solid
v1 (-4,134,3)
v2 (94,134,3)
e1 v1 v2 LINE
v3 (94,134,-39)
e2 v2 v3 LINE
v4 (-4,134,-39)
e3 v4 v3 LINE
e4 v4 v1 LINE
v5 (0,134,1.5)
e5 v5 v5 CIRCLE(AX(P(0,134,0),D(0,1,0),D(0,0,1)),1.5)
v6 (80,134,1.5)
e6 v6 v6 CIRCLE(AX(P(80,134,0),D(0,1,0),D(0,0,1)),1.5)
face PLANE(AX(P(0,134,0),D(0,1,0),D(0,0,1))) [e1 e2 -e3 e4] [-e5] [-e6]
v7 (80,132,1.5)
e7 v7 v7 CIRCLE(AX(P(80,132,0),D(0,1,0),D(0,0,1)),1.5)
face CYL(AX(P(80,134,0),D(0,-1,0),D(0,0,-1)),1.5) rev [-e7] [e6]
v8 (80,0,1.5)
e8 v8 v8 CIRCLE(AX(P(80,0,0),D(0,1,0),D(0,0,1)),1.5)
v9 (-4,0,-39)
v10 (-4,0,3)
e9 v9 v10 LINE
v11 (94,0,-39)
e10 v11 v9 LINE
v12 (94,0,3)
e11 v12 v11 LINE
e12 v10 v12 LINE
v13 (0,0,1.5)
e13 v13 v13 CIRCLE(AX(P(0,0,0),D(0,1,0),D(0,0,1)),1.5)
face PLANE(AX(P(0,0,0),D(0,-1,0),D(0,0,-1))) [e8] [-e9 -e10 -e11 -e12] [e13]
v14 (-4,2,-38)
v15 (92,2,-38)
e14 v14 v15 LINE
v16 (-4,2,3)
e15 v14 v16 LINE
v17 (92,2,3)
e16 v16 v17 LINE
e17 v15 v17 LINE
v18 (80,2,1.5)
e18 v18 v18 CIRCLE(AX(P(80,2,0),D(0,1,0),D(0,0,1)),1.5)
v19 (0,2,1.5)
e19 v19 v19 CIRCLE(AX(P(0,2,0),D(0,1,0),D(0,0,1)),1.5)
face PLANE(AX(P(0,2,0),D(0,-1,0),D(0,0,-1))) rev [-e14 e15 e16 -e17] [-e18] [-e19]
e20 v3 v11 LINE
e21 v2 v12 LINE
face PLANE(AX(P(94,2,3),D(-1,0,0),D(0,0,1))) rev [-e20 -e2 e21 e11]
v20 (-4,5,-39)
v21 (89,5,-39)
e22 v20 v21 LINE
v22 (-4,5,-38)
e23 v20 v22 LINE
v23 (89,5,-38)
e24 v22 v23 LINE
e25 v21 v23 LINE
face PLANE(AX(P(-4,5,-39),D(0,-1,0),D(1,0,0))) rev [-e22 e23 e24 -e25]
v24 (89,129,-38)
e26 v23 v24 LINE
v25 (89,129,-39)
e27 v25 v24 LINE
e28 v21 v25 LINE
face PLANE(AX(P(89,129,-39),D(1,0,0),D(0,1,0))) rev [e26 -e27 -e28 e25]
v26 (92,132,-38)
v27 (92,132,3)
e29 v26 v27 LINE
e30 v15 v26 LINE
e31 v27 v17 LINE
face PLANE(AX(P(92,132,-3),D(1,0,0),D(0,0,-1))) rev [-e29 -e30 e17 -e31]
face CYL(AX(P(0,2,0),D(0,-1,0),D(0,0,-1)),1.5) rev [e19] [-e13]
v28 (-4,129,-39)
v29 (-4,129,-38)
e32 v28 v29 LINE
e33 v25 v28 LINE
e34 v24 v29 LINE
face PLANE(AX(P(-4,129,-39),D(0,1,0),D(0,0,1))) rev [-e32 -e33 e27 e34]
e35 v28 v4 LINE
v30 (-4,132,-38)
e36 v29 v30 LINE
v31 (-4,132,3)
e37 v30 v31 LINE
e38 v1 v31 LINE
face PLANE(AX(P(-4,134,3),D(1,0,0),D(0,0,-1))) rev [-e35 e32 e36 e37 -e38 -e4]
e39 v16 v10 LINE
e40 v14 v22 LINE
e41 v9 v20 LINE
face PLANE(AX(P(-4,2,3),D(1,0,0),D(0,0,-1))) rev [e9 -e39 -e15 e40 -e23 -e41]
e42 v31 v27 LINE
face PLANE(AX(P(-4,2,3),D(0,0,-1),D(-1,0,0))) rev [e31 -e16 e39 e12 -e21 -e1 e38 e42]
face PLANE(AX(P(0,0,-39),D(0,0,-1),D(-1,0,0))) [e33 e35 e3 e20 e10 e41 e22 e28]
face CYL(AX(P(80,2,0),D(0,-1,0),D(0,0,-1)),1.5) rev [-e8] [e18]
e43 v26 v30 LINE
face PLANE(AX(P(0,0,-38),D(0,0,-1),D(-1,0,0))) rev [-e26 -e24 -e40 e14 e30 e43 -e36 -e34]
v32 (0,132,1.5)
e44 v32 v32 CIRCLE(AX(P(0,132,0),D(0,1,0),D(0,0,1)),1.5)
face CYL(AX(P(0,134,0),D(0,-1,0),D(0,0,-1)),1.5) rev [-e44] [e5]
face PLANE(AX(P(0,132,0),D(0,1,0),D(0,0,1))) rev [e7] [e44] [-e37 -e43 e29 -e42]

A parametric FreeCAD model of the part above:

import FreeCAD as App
import Part
import Sketcher
from FreeCAD import Vector
Q = App.Units.Quantity


def add_polygon(sketch, points):
    """Adds a closed chain of lines whose ends are joined by coincident constraints."""
    first, n = sketch.GeometryCount, len(points)
    for a, b in zip(points, points[1:] + points[:1]):
        sketch.addGeometry(Part.LineSegment(App.Vector(*a, 0), App.Vector(*b, 0)), False)
    for i in range(n):
        sketch.addConstraint(Sketcher.Constraint("Coincident", first + i, 2, first + (i + 1) % n, 1))

doc = App.newDocument("Part")
body = doc.addObject("PartDesign::Body", "Body")

sketch1 = body.newObject("Sketcher::SketchObject", "Sketch")
sketch1.AttachmentSupport = (doc.getObject("XZ_Plane"), [""])
sketch1.MapMode = "FlatFace"
add_polygon(sketch1, [(-4, -3), (-4, 3), (94, 3), (94, -3)])
sketch1.addGeometry(Part.Circle(Vector(0, 0, 0), Vector(0, 0, 1), 1.5), False)
sketch1.addGeometry(Part.Circle(Vector(80, 0, 0), Vector(0, 0, 1), 1.5), False)
sketch1.addConstraint(Sketcher.Constraint("Vertical", 0))
sketch1.addConstraint(Sketcher.Constraint("Horizontal", 1))
sketch1.addConstraint(Sketcher.Constraint("Vertical", 2))
sketch1.addConstraint(Sketcher.Constraint("Horizontal", 3))
sketch1.addConstraint(Sketcher.Constraint("Coincident", 4, 3, -1, 1))
sketch1.addConstraint(Sketcher.Constraint("Equal", 4, 5))
sketch1.addConstraint(Sketcher.Constraint("PointOnObject", 5, 3, -1))
sketch1.addConstraint(Sketcher.Constraint("Diameter", 4, Q("3 mm")))
sketch1.addConstraint(Sketcher.Constraint("DistanceX", 1, 1, 1, 2, Q("98 mm")))
sketch1.addConstraint(Sketcher.Constraint("DistanceY", 0, 1, 0, 2, Q("6 mm")))
sketch1.addConstraint(Sketcher.Constraint("DistanceX", -1, 1, 5, 3, Q("80 mm")))
sketch1.addConstraint(Sketcher.Constraint("DistanceX", 0, 2, -1, 1, Q("4 mm")))
sketch1.addConstraint(Sketcher.Constraint("DistanceY", -1, 1, 0, 2, Q("3 mm")))
pad1 = body.newObject("PartDesign::Pad", "Pad")
pad1.Profile = sketch1
pad1.Length = 2
pad1.Reversed = True

sketch2 = body.newObject("Sketcher::SketchObject", "Sketch001")
sketch2.AttachmentSupport = (doc.getObject("XZ_Plane"), [""])
sketch2.MapMode = "FlatFace"
sketch2.AttachmentOffset = App.Placement(Vector(0, 0, -2), App.Rotation())
add_polygon(sketch2, [(92, -3), (92, 3), (94, 3), (94, -3)])
sketch2.addConstraint(Sketcher.Constraint("Vertical", 0))
sketch2.addConstraint(Sketcher.Constraint("Horizontal", 1))
sketch2.addConstraint(Sketcher.Constraint("Vertical", 2))
sketch2.addConstraint(Sketcher.Constraint("Horizontal", 3))
sketch2.addConstraint(Sketcher.Constraint("DistanceX", 1, 1, 1, 2, Q("2 mm")))
sketch2.addConstraint(Sketcher.Constraint("DistanceY", 0, 1, 0, 2, Q("6 mm")))
sketch2.addConstraint(Sketcher.Constraint("DistanceX", -1, 1, 0, 2, Q("92 mm")))
sketch2.addConstraint(Sketcher.Constraint("DistanceY", -1, 1, 0, 2, Q("3 mm")))
pad2 = body.newObject("PartDesign::Pad", "Pad001")
pad2.Profile = sketch2
pad2.Length = 130
pad2.Reversed = True

sketch3 = body.newObject("Sketcher::SketchObject", "Sketch002")
sketch3.AttachmentSupport = (doc.getObject("XZ_Plane"), [""])
sketch3.MapMode = "FlatFace"
sketch3.AttachmentOffset = App.Placement(Vector(0, 0, -132), App.Rotation())
add_polygon(sketch3, [(-4, -3), (-4, 3), (94, 3), (94, -3)])
sketch3.addGeometry(Part.Circle(Vector(0, 0, 0), Vector(0, 0, 1), 1.5), False)
sketch3.addGeometry(Part.Circle(Vector(80, 0, 0), Vector(0, 0, 1), 1.5), False)
sketch3.addConstraint(Sketcher.Constraint("Vertical", 0))
sketch3.addConstraint(Sketcher.Constraint("Horizontal", 1))
sketch3.addConstraint(Sketcher.Constraint("Vertical", 2))
sketch3.addConstraint(Sketcher.Constraint("Horizontal", 3))
sketch3.addConstraint(Sketcher.Constraint("Coincident", 4, 3, -1, 1))
sketch3.addConstraint(Sketcher.Constraint("Equal", 4, 5))
sketch3.addConstraint(Sketcher.Constraint("PointOnObject", 5, 3, -1))
sketch3.addConstraint(Sketcher.Constraint("Diameter", 4, Q("3 mm")))
sketch3.addConstraint(Sketcher.Constraint("DistanceX", 1, 1, 1, 2, Q("98 mm")))
sketch3.addConstraint(Sketcher.Constraint("DistanceY", 0, 1, 0, 2, Q("6 mm")))
sketch3.addConstraint(Sketcher.Constraint("DistanceX", -1, 1, 5, 3, Q("80 mm")))
sketch3.addConstraint(Sketcher.Constraint("DistanceX", 0, 2, -1, 1, Q("4 mm")))
sketch3.addConstraint(Sketcher.Constraint("DistanceY", -1, 1, 0, 2, Q("3 mm")))
pad3 = body.newObject("PartDesign::Pad", "Pad002")
pad3.Profile = sketch3
pad3.Length = 2
pad3.Reversed = True

sketch4 = body.newObject("Sketcher::SketchObject", "Sketch003")
sketch4.AttachmentSupport = (doc.getObject("XY_Plane"), [""])
sketch4.MapMode = "FlatFace"
sketch4.AttachmentOffset = App.Placement(Vector(0, 0, -3), App.Rotation())
add_polygon(sketch4, [(94, 0), (-4, 0), (-4, 2), (92, 2), (92, 132), (-4, 132), (-4, 134), (94, 134)])
sketch4.addConstraint(Sketcher.Constraint("Horizontal", 0))
sketch4.addConstraint(Sketcher.Constraint("Vertical", 1))
sketch4.addConstraint(Sketcher.Constraint("Horizontal", 2))
sketch4.addConstraint(Sketcher.Constraint("Vertical", 3))
sketch4.addConstraint(Sketcher.Constraint("Horizontal", 4))
sketch4.addConstraint(Sketcher.Constraint("Vertical", 5))
sketch4.addConstraint(Sketcher.Constraint("Horizontal", 6))
sketch4.addConstraint(Sketcher.Constraint("Vertical", 7))
sketch4.addConstraint(Sketcher.Constraint("PointOnObject", 0, 2, -1))
sketch4.addConstraint(Sketcher.Constraint("Vertical", 1, 2, 4, 2))
sketch4.addConstraint(Sketcher.Constraint("Equal", 1, 5))
sketch4.addConstraint(Sketcher.Constraint("DistanceX", 0, 2, 0, 1, Q("98 mm")))
sketch4.addConstraint(Sketcher.Constraint("DistanceX", 2, 1, 2, 2, Q("96 mm")))
sketch4.addConstraint(Sketcher.Constraint("DistanceY", 1, 1, 1, 2, Q("2 mm")))
sketch4.addConstraint(Sketcher.Constraint("DistanceY", 3, 1, 3, 2, Q("130 mm")))
sketch4.addConstraint(Sketcher.Constraint("DistanceX", 0, 2, -1, 1, Q("4 mm")))
pad4 = body.newObject("PartDesign::Pad", "Pad003")
pad4.Profile = sketch4
pad4.Length = 35
pad4.Reversed = True

sketch5 = body.newObject("Sketcher::SketchObject", "Sketch004")
sketch5.AttachmentSupport = (doc.getObject("XY_Plane"), [""])
sketch5.MapMode = "FlatFace"
sketch5.AttachmentOffset = App.Placement(Vector(0, 0, -38), App.Rotation())
add_polygon(sketch5, [(94, 0), (-4, 0), (-4, 5), (89, 5), (89, 129), (-4, 129), (-4, 134), (94, 134)])
sketch5.addConstraint(Sketcher.Constraint("Horizontal", 0))
sketch5.addConstraint(Sketcher.Constraint("Vertical", 1))
sketch5.addConstraint(Sketcher.Constraint("Horizontal", 2))
sketch5.addConstraint(Sketcher.Constraint("Vertical", 3))
sketch5.addConstraint(Sketcher.Constraint("Horizontal", 4))
sketch5.addConstraint(Sketcher.Constraint("Vertical", 5))
sketch5.addConstraint(Sketcher.Constraint("Horizontal", 6))
sketch5.addConstraint(Sketcher.Constraint("Vertical", 7))
sketch5.addConstraint(Sketcher.Constraint("PointOnObject", 0, 2, -1))
sketch5.addConstraint(Sketcher.Constraint("Vertical", 1, 2, 4, 2))
sketch5.addConstraint(Sketcher.Constraint("Equal", 1, 5))
sketch5.addConstraint(Sketcher.Constraint("DistanceX", 0, 2, 0, 1, Q("98 mm")))
sketch5.addConstraint(Sketcher.Constraint("DistanceX", 2, 1, 2, 2, Q("93 mm")))
sketch5.addConstraint(Sketcher.Constraint("DistanceY", 1, 1, 1, 2, Q("5 mm")))
sketch5.addConstraint(Sketcher.Constraint("DistanceY", 3, 1, 3, 2, Q("124 mm")))
sketch5.addConstraint(Sketcher.Constraint("DistanceX", 0, 2, -1, 1, Q("4 mm")))
pad5 = body.newObject("PartDesign::Pad", "Pad004")
pad5.Profile = sketch5
pad5.Length = 1
pad5.Reversed = True

doc.recompute()
